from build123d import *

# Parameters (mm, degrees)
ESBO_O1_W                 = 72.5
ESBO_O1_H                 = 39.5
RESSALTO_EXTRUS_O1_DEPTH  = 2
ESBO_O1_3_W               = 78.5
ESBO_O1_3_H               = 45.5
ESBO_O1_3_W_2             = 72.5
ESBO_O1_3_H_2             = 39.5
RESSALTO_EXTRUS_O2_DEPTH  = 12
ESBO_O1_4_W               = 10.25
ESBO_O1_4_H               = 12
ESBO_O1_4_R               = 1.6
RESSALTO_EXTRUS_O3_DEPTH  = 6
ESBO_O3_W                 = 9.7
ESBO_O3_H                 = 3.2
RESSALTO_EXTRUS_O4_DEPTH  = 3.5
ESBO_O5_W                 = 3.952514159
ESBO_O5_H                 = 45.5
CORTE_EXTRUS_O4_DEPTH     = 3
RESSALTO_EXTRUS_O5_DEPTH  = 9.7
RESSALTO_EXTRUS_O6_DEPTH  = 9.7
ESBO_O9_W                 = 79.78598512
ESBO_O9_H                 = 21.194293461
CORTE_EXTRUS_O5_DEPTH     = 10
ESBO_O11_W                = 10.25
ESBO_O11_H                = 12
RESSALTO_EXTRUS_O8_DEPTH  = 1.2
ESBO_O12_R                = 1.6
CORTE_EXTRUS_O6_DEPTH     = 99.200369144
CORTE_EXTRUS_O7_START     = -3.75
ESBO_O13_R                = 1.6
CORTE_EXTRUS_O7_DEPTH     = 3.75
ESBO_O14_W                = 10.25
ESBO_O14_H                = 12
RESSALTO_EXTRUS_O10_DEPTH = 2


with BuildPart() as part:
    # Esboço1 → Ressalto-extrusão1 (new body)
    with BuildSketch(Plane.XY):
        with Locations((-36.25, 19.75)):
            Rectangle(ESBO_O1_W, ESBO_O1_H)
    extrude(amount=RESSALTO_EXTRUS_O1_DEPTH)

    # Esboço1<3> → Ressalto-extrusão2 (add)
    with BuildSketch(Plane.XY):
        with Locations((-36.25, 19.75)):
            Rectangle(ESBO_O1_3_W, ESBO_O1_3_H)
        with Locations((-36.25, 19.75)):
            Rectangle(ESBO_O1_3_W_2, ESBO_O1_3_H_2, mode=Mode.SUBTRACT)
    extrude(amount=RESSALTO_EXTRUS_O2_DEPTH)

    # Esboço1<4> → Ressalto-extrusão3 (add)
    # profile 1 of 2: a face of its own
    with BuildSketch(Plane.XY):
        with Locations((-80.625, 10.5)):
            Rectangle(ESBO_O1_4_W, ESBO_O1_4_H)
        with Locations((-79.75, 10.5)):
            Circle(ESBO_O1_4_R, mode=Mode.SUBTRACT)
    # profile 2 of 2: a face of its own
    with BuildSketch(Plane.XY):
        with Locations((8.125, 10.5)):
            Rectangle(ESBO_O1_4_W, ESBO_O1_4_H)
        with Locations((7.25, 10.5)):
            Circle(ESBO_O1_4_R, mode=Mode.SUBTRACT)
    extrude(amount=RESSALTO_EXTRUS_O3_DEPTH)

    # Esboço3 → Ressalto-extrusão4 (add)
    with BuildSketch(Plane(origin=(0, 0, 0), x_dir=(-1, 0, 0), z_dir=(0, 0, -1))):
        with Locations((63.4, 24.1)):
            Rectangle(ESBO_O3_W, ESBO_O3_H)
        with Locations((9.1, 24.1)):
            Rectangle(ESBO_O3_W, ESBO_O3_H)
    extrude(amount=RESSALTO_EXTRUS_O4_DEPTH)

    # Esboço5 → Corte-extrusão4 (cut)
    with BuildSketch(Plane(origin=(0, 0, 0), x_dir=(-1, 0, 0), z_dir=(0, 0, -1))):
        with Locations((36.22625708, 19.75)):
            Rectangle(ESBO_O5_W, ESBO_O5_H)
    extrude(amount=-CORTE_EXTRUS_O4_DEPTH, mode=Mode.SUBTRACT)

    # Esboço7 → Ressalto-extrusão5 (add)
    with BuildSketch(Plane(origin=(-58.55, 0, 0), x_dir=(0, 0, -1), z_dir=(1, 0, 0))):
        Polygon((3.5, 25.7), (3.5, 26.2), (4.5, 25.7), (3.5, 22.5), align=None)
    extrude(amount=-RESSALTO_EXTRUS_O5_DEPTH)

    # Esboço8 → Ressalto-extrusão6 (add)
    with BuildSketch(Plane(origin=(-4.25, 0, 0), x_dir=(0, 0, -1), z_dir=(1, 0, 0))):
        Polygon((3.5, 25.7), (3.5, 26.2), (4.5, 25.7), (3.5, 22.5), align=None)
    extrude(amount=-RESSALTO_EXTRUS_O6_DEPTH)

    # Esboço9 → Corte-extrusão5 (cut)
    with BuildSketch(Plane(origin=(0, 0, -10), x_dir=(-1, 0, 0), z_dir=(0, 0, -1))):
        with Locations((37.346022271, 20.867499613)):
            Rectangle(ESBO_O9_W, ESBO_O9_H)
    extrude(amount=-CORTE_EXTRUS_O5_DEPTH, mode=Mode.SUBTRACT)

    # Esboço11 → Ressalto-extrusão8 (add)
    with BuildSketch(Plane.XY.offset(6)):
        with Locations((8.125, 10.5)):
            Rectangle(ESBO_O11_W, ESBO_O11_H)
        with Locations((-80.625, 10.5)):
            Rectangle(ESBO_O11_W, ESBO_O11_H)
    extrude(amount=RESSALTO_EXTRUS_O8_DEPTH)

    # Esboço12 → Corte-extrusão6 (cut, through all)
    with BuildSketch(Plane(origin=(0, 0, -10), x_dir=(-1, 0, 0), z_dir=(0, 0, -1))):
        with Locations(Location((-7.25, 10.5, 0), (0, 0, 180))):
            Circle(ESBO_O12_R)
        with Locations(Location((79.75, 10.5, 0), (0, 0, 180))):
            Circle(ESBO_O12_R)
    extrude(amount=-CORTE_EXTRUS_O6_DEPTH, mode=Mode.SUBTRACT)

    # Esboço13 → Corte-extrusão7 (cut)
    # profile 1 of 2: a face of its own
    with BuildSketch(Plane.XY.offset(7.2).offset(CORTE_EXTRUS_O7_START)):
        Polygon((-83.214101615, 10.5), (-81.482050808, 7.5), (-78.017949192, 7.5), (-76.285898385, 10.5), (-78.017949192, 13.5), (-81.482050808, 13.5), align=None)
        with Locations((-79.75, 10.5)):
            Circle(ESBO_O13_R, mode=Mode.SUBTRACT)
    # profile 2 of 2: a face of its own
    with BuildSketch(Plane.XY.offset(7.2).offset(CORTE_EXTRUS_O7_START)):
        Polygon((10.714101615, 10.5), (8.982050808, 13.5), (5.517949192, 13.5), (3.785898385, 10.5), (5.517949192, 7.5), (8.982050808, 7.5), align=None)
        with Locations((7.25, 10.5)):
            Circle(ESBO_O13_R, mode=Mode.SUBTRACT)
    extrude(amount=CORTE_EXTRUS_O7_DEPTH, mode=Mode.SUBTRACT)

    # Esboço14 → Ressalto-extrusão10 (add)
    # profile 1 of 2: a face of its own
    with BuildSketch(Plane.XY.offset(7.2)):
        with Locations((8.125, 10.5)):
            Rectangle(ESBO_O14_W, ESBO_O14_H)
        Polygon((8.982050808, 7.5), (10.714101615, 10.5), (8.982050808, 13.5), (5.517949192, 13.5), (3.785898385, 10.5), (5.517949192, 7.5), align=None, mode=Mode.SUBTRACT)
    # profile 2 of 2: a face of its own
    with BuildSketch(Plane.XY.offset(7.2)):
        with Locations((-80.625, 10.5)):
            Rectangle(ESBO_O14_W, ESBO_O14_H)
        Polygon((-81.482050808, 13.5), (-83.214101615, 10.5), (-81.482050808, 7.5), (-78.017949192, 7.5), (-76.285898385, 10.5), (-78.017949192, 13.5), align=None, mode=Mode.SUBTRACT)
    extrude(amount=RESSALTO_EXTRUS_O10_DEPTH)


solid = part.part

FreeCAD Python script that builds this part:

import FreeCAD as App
import Part
import Sketcher
Q = App.Units.Quantity

doc = App.newDocument("Part")
body = doc.addObject("PartDesign::Body", "Body")

sketch1 = body.newObject("Sketcher::SketchObject", "Sketch")
sketch1.AttachmentSupport = (doc.getObject("XY_Plane"), [""])
sketch1.MapMode = "FlatFace"
sketch1.addGeometry([
    Part.LineSegment(App.Vector(-72.5, 39.5, 0), App.Vector(-72.5, 0, 0)),
    Part.LineSegment(App.Vector(-72.5, 0, 0), App.Vector(0, 0, 0)),
    Part.LineSegment(App.Vector(0, 0, 0), App.Vector(0, 39.5, 0)),
    Part.LineSegment(App.Vector(0, 39.5, 0), App.Vector(-72.5, 39.5, 0)),
], False)
sketch1.addConstraint([
    Sketcher.Constraint("Coincident", 0, 2, 1, 1),
    Sketcher.Constraint("Coincident", 1, 2, 2, 1),
    Sketcher.Constraint("Coincident", 2, 2, 3, 1),
    Sketcher.Constraint("Coincident", 3, 2, 0, 1),
    Sketcher.Constraint("Vertical", 0),
    Sketcher.Constraint("Horizontal", 1),
    Sketcher.Constraint("Vertical", 2),
    Sketcher.Constraint("Horizontal", 3),
    Sketcher.Constraint("Coincident", 1, 2, -1, 1),
    Sketcher.Constraint("DistanceX", 1, 1, 1, 2, Q("72.5 mm")),
    Sketcher.Constraint("DistanceY", 0, 2, 0, 1, Q("39.5 mm")),
])
pad1 = body.newObject("PartDesign::Pad", "Pad")
pad1.Profile = sketch1
pad1.Length = 2

sketch2 = body.newObject("Sketcher::SketchObject", "Sketch001")
sketch2.AttachmentSupport = (doc.getObject("XY_Plane"), [""])
sketch2.MapMode = "FlatFace"
sketch2.addGeometry([
    Part.LineSegment(App.Vector(-75.5, 42.5, 0), App.Vector(-75.5, -3, 0)),
    Part.LineSegment(App.Vector(-75.5, -3, 0), App.Vector(3, -3, 0)),
    Part.LineSegment(App.Vector(3, -3, 0), App.Vector(3, 42.5, 0)),
    Part.LineSegment(App.Vector(3, 42.5, 0), App.Vector(-75.5, 42.5, 0)),
    Part.LineSegment(App.Vector(0, 0, 0), App.Vector(-72.5, 0, 0)),
    Part.LineSegment(App.Vector(-72.5, 0, 0), App.Vector(-72.5, 39.5, 0)),
    Part.LineSegment(App.Vector(-72.5, 39.5, 0), App.Vector(0, 39.5, 0)),
    Part.LineSegment(App.Vector(0, 39.5, 0), App.Vector(0, 0, 0)),
], False)
sketch2.addConstraint([
    Sketcher.Constraint("Coincident", 0, 2, 1, 1),
    Sketcher.Constraint("Coincident", 1, 2, 2, 1),
    Sketcher.Constraint("Coincident", 2, 2, 3, 1),
    Sketcher.Constraint("Coincident", 3, 2, 0, 1),
    Sketcher.Constraint("Coincident", 4, 2, 5, 1),
    Sketcher.Constraint("Coincident", 5, 2, 6, 1),
    Sketcher.Constraint("Coincident", 6, 2, 7, 1),
    Sketcher.Constraint("Coincident", 7, 2, 4, 1),
    Sketcher.Constraint("Vertical", 0),
    Sketcher.Constraint("Horizontal", 1),
    Sketcher.Constraint("Vertical", 2),
    Sketcher.Constraint("Horizontal", 3),
    Sketcher.Constraint("Horizontal", 4),
    Sketcher.Constraint("Vertical", 5),
    Sketcher.Constraint("Horizontal", 6),
    Sketcher.Constraint("Vertical", 7),
    Sketcher.Constraint("Coincident", 7, 2, -1, 1),
    Sketcher.Constraint("DistanceX", 1, 1, 1, 2, Q("78.5 mm")),
    Sketcher.Constraint("DistanceX", 4, 2, 4, 1, Q("72.5 mm")),
    Sketcher.Constraint("DistanceY", 0, 2, 0, 1, Q("45.5 mm")),
    Sketcher.Constraint("DistanceY", 5, 1, 5, 2, Q("39.5 mm")),
    Sketcher.Constraint("DistanceY", 0, 2, -1, 1, Q("3 mm")),
    Sketcher.Constraint("DistanceX", -1, 1, 1, 2, Q("3 mm")),
])
pad2 = body.newObject("PartDesign::Pad", "Pad001")
pad2.Profile = sketch2
pad2.Length = 12

sketch3 = body.newObject("Sketcher::SketchObject", "Sketch002")
sketch3.AttachmentSupport = (doc.getObject("XY_Plane"), [""])
sketch3.MapMode = "FlatFace"
sketch3.addGeometry([
    Part.LineSegment(App.Vector(-85.75, 16.5, 0), App.Vector(-85.75, 4.5, 0)),
    Part.LineSegment(App.Vector(-85.75, 4.5, 0), App.Vector(-75.5, 4.5, 0)),
    Part.LineSegment(App.Vector(-75.5, 4.5, 0), App.Vector(-75.5, 16.5, 0)),
    Part.LineSegment(App.Vector(-75.5, 16.5, 0), App.Vector(-85.75, 16.5, 0)),
    Part.Circle(App.Vector(-79.75, 10.5, 0), App.Vector(0, 0, 1), 1.6),
    Part.LineSegment(App.Vector(3, 16.5, 0), App.Vector(3, 4.5, 0)),
    Part.LineSegment(App.Vector(3, 4.5, 0), App.Vector(13.25, 4.5, 0)),
    Part.LineSegment(App.Vector(13.25, 4.5, 0), App.Vector(13.25, 16.5, 0)),
    Part.LineSegment(App.Vector(13.25, 16.5, 0), App.Vector(3, 16.5, 0)),
    Part.Circle(App.Vector(7.25, 10.5, 0), App.Vector(0, 0, 1), 1.6),
], False)
sketch3.addConstraint([
    Sketcher.Constraint("Coincident", 0, 2, 1, 1),
    Sketcher.Constraint("Coincident", 1, 2, 2, 1),
    Sketcher.Constraint("Coincident", 2, 2, 3, 1),
    Sketcher.Constraint("Coincident", 3, 2, 0, 1),
    Sketcher.Constraint("Coincident", 5, 2, 6, 1),
    Sketcher.Constraint("Coincident", 6, 2, 7, 1),
    Sketcher.Constraint("Coincident", 7, 2, 8, 1),
    Sketcher.Constraint("Coincident", 8, 2, 5, 1),
    Sketcher.Constraint("Vertical", 0),
    Sketcher.Constraint("Horizontal", 1),
    Sketcher.Constraint("Vertical", 2),
    Sketcher.Constraint("Horizontal", 3),
    Sketcher.Constraint("Vertical", 5),
    Sketcher.Constraint("Horizontal", 6),
    Sketcher.Constraint("Vertical", 7),
    Sketcher.Constraint("Horizontal", 8),
    Sketcher.Constraint("Equal", 4, 9),
    Sketcher.Constraint("Horizontal", 4, 3, 9, 3),
    Sketcher.Constraint("Horizontal", 1, 2, 5, 2),
    Sketcher.Constraint("Horizontal", 3, 2, 7, 2),
    Sketcher.Constraint("Equal", 3, 6),
    Sketcher.Constraint("Diameter", 4, Q("3.2 mm")),
    Sketcher.Constraint("DistanceY", 0, 2, 0, 1, Q("12 mm")),
    Sketcher.Constraint("DistanceX", -1, 1, 5, 2, Q("3 mm")),
    Sketcher.Constraint("DistanceX", 4, 3, 9, 3, Q("87 mm")),
    Sketcher.Constraint("DistanceX", 0, 2, 4, 3, Q("6 mm")),
    Sketcher.Constraint("DistanceY", 0, 2, 4, 3, Q("6 mm")),
    Sketcher.Constraint("DistanceX", 9, 3, 6, 2, Q("6 mm")),
    Sketcher.Constraint("DistanceX", 1, 1, 1, 2, Q("10.25 mm")),
    Sketcher.Constraint("DistanceY", -1, 1, 4, 3, Q("10.5 mm")),
])
pad3 = body.newObject("PartDesign::Pad", "Pad002")
pad3.Profile = sketch3
pad3.Length = 6

sketch4 = body.newObject("Sketcher::SketchObject", "Sketch003")
sketch4.AttachmentSupport = (doc.getObject("XY_Plane"), [""])
sketch4.MapMode = "FlatFace"
sketch4.addGeometry([
    Part.LineSegment(App.Vector(-58.55, 25.7, 0), App.Vector(-58.55, 22.5, 0)),
    Part.LineSegment(App.Vector(-58.55, 22.5, 0), App.Vector(-68.25, 22.5, 0)),
    Part.LineSegment(App.Vector(-68.25, 22.5, 0), App.Vector(-68.25, 25.7, 0)),
    Part.LineSegment(App.Vector(-68.25, 25.7, 0), App.Vector(-58.55, 25.7, 0)),
    Part.LineSegment(App.Vector(-4.25, 25.7, 0), App.Vector(-4.25, 22.5, 0)),
    Part.LineSegment(App.Vector(-4.25, 22.5, 0), App.Vector(-13.95, 22.5, 0)),
    Part.LineSegment(App.Vector(-13.95, 22.5, 0), App.Vector(-13.95, 25.7, 0)),
    Part.LineSegment(App.Vector(-13.95, 25.7, 0), App.Vector(-4.25, 25.7, 0)),
], False)
sketch4.addConstraint([
    Sketcher.Constraint("Coincident", 0, 2, 1, 1),
    Sketcher.Constraint("Coincident", 1, 2, 2, 1),
    Sketcher.Constraint("Coincident", 2, 2, 3, 1),
    Sketcher.Constraint("Coincident", 3, 2, 0, 1),
    Sketcher.Constraint("Coincident", 4, 2, 5, 1),
    Sketcher.Constraint("Coincident", 5, 2, 6, 1),
    Sketcher.Constraint("Coincident", 6, 2, 7, 1),
    Sketcher.Constraint("Coincident", 7, 2, 4, 1),
    Sketcher.Constraint("Vertical", 0),
    Sketcher.Constraint("Horizontal", 1),
    Sketcher.Constraint("Vertical", 2),
    Sketcher.Constraint("Horizontal", 3),
    Sketcher.Constraint("Vertical", 4),
    Sketcher.Constraint("Horizontal", 5),
    Sketcher.Constraint("Vertical", 6),
    Sketcher.Constraint("Horizontal", 7),
    Sketcher.Constraint("Horizontal", 1, 2, 4, 2),
    Sketcher.Constraint("Horizontal", 3, 2, 6, 2),
    Sketcher.Constraint("Equal", 3, 5),
    Sketcher.Constraint("DistanceX", 1, 2, 1, 1, Q("9.7 mm")),
    Sketcher.Constraint("DistanceY", 0, 2, 0, 1, Q("3.2 mm")),
    Sketcher.Constraint("DistanceX", 1, 2, 4, 2, Q("64 mm")),
    Sketcher.Constraint("DistanceY", -1, 1, 0, 2, Q("22.5 mm")),
    Sketcher.Constraint("DistanceX", 0, 2, -1, 1, Q("58.55 mm")),
])
pad4 = body.newObject("PartDesign::Pad", "Pad003")
pad4.Profile = sketch4
pad4.Length = 3.5
pad4.Reversed = True

sketch5 = body.newObject("Sketcher::SketchObject", "Sketch004")
sketch5.AttachmentSupport = (doc.getObject("XY_Plane"), [""])
sketch5.MapMode = "FlatFace"
sketch5.addGeometry([
    Part.LineSegment(App.Vector(-34.25, 42.5, 0), App.Vector(-34.25, -3, 0)),
    Part.LineSegment(App.Vector(-34.25, -3, 0), App.Vector(-38.202514, -3, 0)),
    Part.LineSegment(App.Vector(-38.202514, -3, 0), App.Vector(-38.202514, 42.5, 0)),
    Part.LineSegment(App.Vector(-38.202514, 42.5, 0), App.Vector(-34.25, 42.5, 0)),
], False)
sketch5.addConstraint([
    Sketcher.Constraint("Coincident", 0, 2, 1, 1),
    Sketcher.Constraint("Coincident", 1, 2, 2, 1),
    Sketcher.Constraint("Coincident", 2, 2, 3, 1),
    Sketcher.Constraint("Coincident", 3, 2, 0, 1),
    Sketcher.Constraint("Vertical", 0),
    Sketcher.Constraint("Horizontal", 1),
    Sketcher.Constraint("Vertical", 2),
    Sketcher.Constraint("Horizontal", 3),
    Sketcher.Constraint("DistanceY", 0, 2, 0, 1, Q("45.5 mm")),
    Sketcher.Constraint("DistanceY", 0, 2, -1, 1, Q("3 mm")),
    Sketcher.Constraint("DistanceX", 0, 2, -1, 1, Q("34.25 mm")),
    Sketcher.Constraint("DistanceX", 1, 2, 1, 1, Q("3.952514 mm")),
])
pocket1 = body.newObject("PartDesign::Pocket", "Pocket")
pocket1.Profile = sketch5
pocket1.Length = 3
pocket1.Reversed = True

sketch6 = body.newObject("Sketcher::SketchObject", "Sketch005")
sketch6.AttachmentSupport = (doc.getObject("YZ_Plane"), [""])
sketch6.MapMode = "FlatFace"
sketch6.AttachmentOffset = App.Placement(App.Vector(0, 0, -58.55), App.Rotation())
sketch6.addGeometry([
    Part.LineSegment(App.Vector(26.2, -3.5, 0), App.Vector(22.5, -3.5, 0)),
    Part.LineSegment(App.Vector(22.5, -3.5, 0), App.Vector(25.7, -4.5, 0)),
    Part.LineSegment(App.Vector(25.7, -4.5, 0), App.Vector(26.2, -3.5, 0)),
], False)
sketch6.addConstraint([
    Sketcher.Constraint("Coincident", 0, 2, 1, 1),
    Sketcher.Constraint("Coincident", 1, 2, 2, 1),
    Sketcher.Constraint("Coincident", 2, 2, 0, 1),
    Sketcher.Constraint("Horizontal", 0),
    Sketcher.Constraint("DistanceX", 0, 2, 0, 1, Q("3.7 mm")),
    Sketcher.Constraint("DistanceY", 1, 2, 0, 2, Q("1 mm")),
    Sketcher.Constraint("DistanceX", -1, 1, 0, 2, Q("22.5 mm")),
    Sketcher.Constraint("DistanceY", 0, 2, -1, 1, Q("3.5 mm")),
    Sketcher.Constraint("DistanceX", -1, 1, 1, 2, Q("25.7 mm")),
])
pad5 = body.newObject("PartDesign::Pad", "Pad004")
pad5.Profile = sketch6
pad5.Length = 9.7
pad5.Reversed = True

sketch7 = body.newObject("Sketcher::SketchObject", "Sketch006")
sketch7.AttachmentSupport = (doc.getObject("YZ_Plane"), [""])
sketch7.MapMode = "FlatFace"
sketch7.AttachmentOffset = App.Placement(App.Vector(0, 0, -4.25), App.Rotation())
sketch7.addGeometry([
    Part.LineSegment(App.Vector(26.2, -3.5, 0), App.Vector(22.5, -3.5, 0)),
    Part.LineSegment(App.Vector(22.5, -3.5, 0), App.Vector(25.7, -4.5, 0)),
    Part.LineSegment(App.Vector(25.7, -4.5, 0), App.Vector(26.2, -3.5, 0)),
], False)
sketch7.addConstraint([
    Sketcher.Constraint("Coincident", 0, 2, 1, 1),
    Sketcher.Constraint("Coincident", 1, 2, 2, 1),
    Sketcher.Constraint("Coincident", 2, 2, 0, 1),
    Sketcher.Constraint("Horizontal", 0),
    Sketcher.Constraint("DistanceX", 0, 2, 0, 1, Q("3.7 mm")),
    Sketcher.Constraint("DistanceY", 1, 2, 0, 2, Q("1 mm")),
    Sketcher.Constraint("DistanceX", -1, 1, 0, 2, Q("22.5 mm")),
    Sketcher.Constraint("DistanceY", 0, 2, -1, 1, Q("3.5 mm")),
    Sketcher.Constraint("DistanceX", -1, 1, 1, 2, Q("25.7 mm")),
])
pad6 = body.newObject("PartDesign::Pad", "Pad005")
pad6.Profile = sketch7
pad6.Length = 9.7
pad6.Reversed = True

sketch8 = body.newObject("Sketcher::SketchObject", "Sketch007")
sketch8.AttachmentSupport = (doc.getObject("XY_Plane"), [""])
sketch8.MapMode = "FlatFace"
sketch8.AttachmentOffset = App.Placement(App.Vector(0, 0, -10), App.Rotation())
sketch8.addGeometry([
    Part.LineSegment(App.Vector(2.54697, 31.464646, 0), App.Vector(2.54697, 10.270353, 0)),
    Part.LineSegment(App.Vector(2.54697, 10.270353, 0), App.Vector(-77.239015, 10.270353, 0)),
    Part.LineSegment(App.Vector(-77.239015, 10.270353, 0), App.Vector(-77.239015, 31.464646, 0)),
    Part.LineSegment(App.Vector(-77.239015, 31.464646, 0), App.Vector(2.54697, 31.464646, 0)),
], False)
sketch8.addConstraint([
    Sketcher.Constraint("Coincident", 0, 2, 1, 1),
    Sketcher.Constraint("Coincident", 1, 2, 2, 1),
    Sketcher.Constraint("Coincident", 2, 2, 3, 1),
    Sketcher.Constraint("Coincident", 3, 2, 0, 1),
    Sketcher.Constraint("Vertical", 0),
    Sketcher.Constraint("Horizontal", 1),
    Sketcher.Constraint("Vertical", 2),
    Sketcher.Constraint("Horizontal", 3),
    Sketcher.Constraint("DistanceX", 1, 2, 1, 1, Q("79.785985 mm")),
    Sketcher.Constraint("DistanceY", 0, 2, 0, 1, Q("21.194293 mm")),
    Sketcher.Constraint("DistanceX", -1, 1, 0, 2, Q("2.54697 mm")),
    Sketcher.Constraint("DistanceY", -1, 1, 0, 2, Q("10.270353 mm")),
])
pocket2 = body.newObject("PartDesign::Pocket", "Pocket001")
pocket2.Profile = sketch8
pocket2.Length = 10
pocket2.Reversed = True

sketch9 = body.newObject("Sketcher::SketchObject", "Sketch008")
sketch9.AttachmentSupport = (doc.getObject("XY_Plane"), [""])
sketch9.MapMode = "FlatFace"
sketch9.AttachmentOffset = App.Placement(App.Vector(0, 0, 6), App.Rotation())
sketch9.addGeometry([
    Part.LineSegment(App.Vector(3, 16.5, 0), App.Vector(3, 4.5, 0)),
    Part.LineSegment(App.Vector(3, 4.5, 0), App.Vector(13.25, 4.5, 0)),
    Part.LineSegment(App.Vector(13.25, 4.5, 0), App.Vector(13.25, 16.5, 0)),
    Part.LineSegment(App.Vector(13.25, 16.5, 0), App.Vector(3, 16.5, 0)),
    Part.LineSegment(App.Vector(-85.75, 16.5, 0), App.Vector(-85.75, 4.5, 0)),
    Part.LineSegment(App.Vector(-85.75, 4.5, 0), App.Vector(-75.5, 4.5, 0)),
    Part.LineSegment(App.Vector(-75.5, 4.5, 0), App.Vector(-75.5, 16.5, 0)),
    Part.LineSegment(App.Vector(-75.5, 16.5, 0), App.Vector(-85.75, 16.5, 0)),
], False)
sketch9.addConstraint([
    Sketcher.Constraint("Coincident", 0, 2, 1, 1),
    Sketcher.Constraint("Coincident", 1, 2, 2, 1),
    Sketcher.Constraint("Coincident", 2, 2, 3, 1),
    Sketcher.Constraint("Coincident", 3, 2, 0, 1),
    Sketcher.Constraint("Coincident", 4, 2, 5, 1),
    Sketcher.Constraint("Coincident", 5, 2, 6, 1),
    Sketcher.Constraint("Coincident", 6, 2, 7, 1),
    Sketcher.Constraint("Coincident", 7, 2, 4, 1),
    Sketcher.Constraint("Vertical", 0),
    Sketcher.Constraint("Horizontal", 1),
    Sketcher.Constraint("Vertical", 2),
    Sketcher.Constraint("Horizontal", 3),
    Sketcher.Constraint("Vertical", 4),
    Sketcher.Constraint("Horizontal", 5),
    Sketcher.Constraint("Vertical", 6),
    Sketcher.Constraint("Horizontal", 7),
    Sketcher.Constraint("Horizontal", 1, 2, 4, 2),
    Sketcher.Constraint("Horizontal", 3, 2, 6, 2),
    Sketcher.Constraint("Equal", 3, 5),
    Sketcher.Constraint("DistanceY", 0, 2, 0, 1, Q("12 mm")),
    Sketcher.Constraint("DistanceX", -1, 1, 0, 2, Q("3 mm")),
    Sketcher.Constraint("DistanceX", 4, 2, 1, 2, Q("99 mm")),
    Sketcher.Constraint("DistanceX", 1, 1, 1, 2, Q("10.25 mm")),
    Sketcher.Constraint("DistanceY", -1, 1, 0, 2, Q("4.5 mm")),
])
pad7 = body.newObject("PartDesign::Pad", "Pad006")
pad7.Profile = sketch9
pad7.Length = 1.2

sketch10 = body.newObject("Sketcher::SketchObject", "Sketch009")
sketch10.AttachmentSupport = (doc.getObject("XY_Plane"), [""])
sketch10.MapMode = "FlatFace"
sketch10.AttachmentOffset = App.Placement(App.Vector(0, 0, -10), App.Rotation())
sketch10.addGeometry([
    Part.Circle(App.Vector(7.25, 10.5, 0), App.Vector(0, 0, 1), 1.6),
    Part.Circle(App.Vector(-79.75, 10.5, 0), App.Vector(0, 0, 1), 1.6),
], False)
sketch10.addConstraint([
    Sketcher.Constraint("Equal", 0, 1),
    Sketcher.Constraint("Horizontal", 0, 3, 1, 3),
    Sketcher.Constraint("Diameter", 0, Q("3.2 mm")),
    Sketcher.Constraint("DistanceX", 1, 3, 0, 3, Q("87 mm")),
    Sketcher.Constraint("DistanceY", -1, 1, 0, 3, Q("10.5 mm")),
    Sketcher.Constraint("DistanceX", -1, 1, 0, 3, Q("7.25 mm")),
])
pocket3 = body.newObject("PartDesign::Pocket", "Pocket002")
pocket3.Profile = sketch10
pocket3.Type = "ThroughAll"
pocket3.Reversed = True

sketch11 = body.newObject("Sketcher::SketchObject", "Sketch010")
sketch11.AttachmentSupport = (doc.getObject("XY_Plane"), [""])
sketch11.MapMode = "FlatFace"
sketch11.AttachmentOffset = App.Placement(App.Vector(0, 0, 3.45), App.Rotation())
sketch11.addGeometry([
    Part.LineSegment(App.Vector(-83.214102, 10.5, 0), App.Vector(-81.482051, 7.5, 0)),
    Part.LineSegment(App.Vector(-81.482051, 7.5, 0), App.Vector(-78.017949, 7.5, 0)),
    Part.LineSegment(App.Vector(-78.017949, 7.5, 0), App.Vector(-76.285898, 10.5, 0)),
    Part.LineSegment(App.Vector(-76.285898, 10.5, 0), App.Vector(-78.017949, 13.5, 0)),
    Part.LineSegment(App.Vector(-78.017949, 13.5, 0), App.Vector(-81.482051, 13.5, 0)),
    Part.LineSegment(App.Vector(-81.482051, 13.5, 0), App.Vector(-83.214102, 10.5, 0)),
    Part.Circle(App.Vector(-79.75, 10.5, 0), App.Vector(0, 0, 1), 1.6),
    Part.LineSegment(App.Vector(10.714102, 10.5, 0), App.Vector(8.982051, 13.5, 0)),
    Part.LineSegment(App.Vector(8.982051, 13.5, 0), App.Vector(5.517949, 13.5, 0)),
    Part.LineSegment(App.Vector(5.517949, 13.5, 0), App.Vector(3.785898, 10.5, 0)),
    Part.LineSegment(App.Vector(3.785898, 10.5, 0), App.Vector(5.517949, 7.5, 0)),
    Part.LineSegment(App.Vector(5.517949, 7.5, 0), App.Vector(8.982051, 7.5, 0)),
    Part.LineSegment(App.Vector(8.982051, 7.5, 0), App.Vector(10.714102, 10.5, 0)),
    Part.Circle(App.Vector(7.25, 10.5, 0), App.Vector(0, 0, 1), 1.6),
], False)
sketch11.addConstraint([
    Sketcher.Constraint("Coincident", 0, 2, 1, 1),
    Sketcher.Constraint("Coincident", 1, 2, 2, 1),
    Sketcher.Constraint("Coincident", 2, 2, 3, 1),
    Sketcher.Constraint("Coincident", 3, 2, 4, 1),
    Sketcher.Constraint("Coincident", 4, 2, 5, 1),
    Sketcher.Constraint("Coincident", 5, 2, 0, 1),
    Sketcher.Constraint("Coincident", 7, 2, 8, 1),
    Sketcher.Constraint("Coincident", 8, 2, 9, 1),
    Sketcher.Constraint("Coincident", 9, 2, 10, 1),
    Sketcher.Constraint("Coincident", 10, 2, 11, 1),
    Sketcher.Constraint("Coincident", 11, 2, 12, 1),
    Sketcher.Constraint("Coincident", 12, 2, 7, 1),
    Sketcher.Constraint("Horizontal", 1),
    Sketcher.Constraint("Horizontal", 4),
    Sketcher.Constraint("Horizontal", 8),
    Sketcher.Constraint("Horizontal", 11),
    Sketcher.Constraint("Equal", 6, 13),
    Sketcher.Constraint("Parallel", 0, 3),
    Sketcher.Constraint("Parallel", 2, 5),
    Sketcher.Constraint("Parallel", 3, 7),
    Sketcher.Constraint("Parallel", 5, 9),
    Sketcher.Constraint("Parallel", 7, 10),
    Sketcher.Constraint("Parallel", 9, 12),
    Sketcher.Constraint("Horizontal", 6, 3, 13, 3),
    Sketcher.Constraint("Horizontal", 13, 3, 2, 2),
    Sketcher.Constraint("Horizontal", 2, 2, 5, 2),
    Sketcher.Constraint("Horizontal", 4, 2, 7, 2),
    Sketcher.Constraint("Horizontal", 5, 2, 9, 2),
    Sketcher.Constraint("Horizontal", 1, 2, 10, 2),
    Sketcher.Constraint("Horizontal", 9, 2, 12, 2),
    Sketcher.Constraint("Vertical", 1, 2, 3, 2),
    Sketcher.Constraint("Vertical", 0, 2, 4, 2),
    Sketcher.Constraint("Equal", 4, 8),
    Sketcher.Constraint("Diameter", 6, Q("3.2 mm")),
    Sketcher.Constraint("Angle", 0, Q("-60 deg")),
    Sketcher.Constraint("DistanceX", 6, 3, 13, 3, Q("87 mm")),
    Sketcher.Constraint("DistanceY", 0, 2, 6, 3, Q("3 mm")),
    Sketcher.Constraint("DistanceX", 3, 2, 7, 2, Q("87 mm")),
    Sketcher.Constraint("DistanceY", -1, 1, 6, 3, Q("10.5 mm")),
    Sketcher.Constraint("DistanceX", 6, 3, -1, 1, Q("79.75 mm")),
    Sketcher.Constraint("DistanceX", 1, 1, 1, 2, Q("3.464102 mm")),
    Sketcher.Constraint("DistanceX", 2, 2, -1, 1, Q("76.285898 mm")),
])
pocket4 = body.newObject("PartDesign::Pocket", "Pocket003")
pocket4.Profile = sketch11
pocket4.Length = 3.75
pocket4.Reversed = True

sketch12 = body.newObject("Sketcher::SketchObject", "Sketch011")
sketch12.AttachmentSupport = (doc.getObject("XY_Plane"), [""])
sketch12.MapMode = "FlatFace"
sketch12.AttachmentOffset = App.Placement(App.Vector(0, 0, 7.2), App.Rotation())
sketch12.addGeometry([
    Part.LineSegment(App.Vector(3, 16.5, 0), App.Vector(3, 4.5, 0)),
    Part.LineSegment(App.Vector(3, 4.5, 0), App.Vector(13.25, 4.5, 0)),
    Part.LineSegment(App.Vector(13.25, 4.5, 0), App.Vector(13.25, 16.5, 0)),
    Part.LineSegment(App.Vector(13.25, 16.5, 0), App.Vector(3, 16.5, 0)),
    Part.LineSegment(App.Vector(10.714102, 10.5, 0), App.Vector(8.982051, 7.5, 0)),
    Part.LineSegment(App.Vector(8.982051, 7.5, 0), App.Vector(5.517949, 7.5, 0)),
    Part.LineSegment(App.Vector(5.517949, 7.5, 0), App.Vector(3.785898, 10.5, 0)),
    Part.LineSegment(App.Vector(3.785898, 10.5, 0), App.Vector(5.517949, 13.5, 0)),
    Part.LineSegment(App.Vector(5.517949, 13.5, 0), App.Vector(8.982051, 13.5, 0)),
    Part.LineSegment(App.Vector(8.982051, 13.5, 0), App.Vector(10.714102, 10.5, 0)),
    Part.LineSegment(App.Vector(-85.75, 16.5, 0), App.Vector(-85.75, 4.5, 0)),
    Part.LineSegment(App.Vector(-85.75, 4.5, 0), App.Vector(-75.5, 4.5, 0)),
    Part.LineSegment(App.Vector(-75.5, 4.5, 0), App.Vector(-75.5, 16.5, 0)),
    Part.LineSegment(App.Vector(-75.5, 16.5, 0), App.Vector(-85.75, 16.5, 0)),
    Part.LineSegment(App.Vector(-83.214102, 10.5, 0), App.Vector(-81.482051, 13.5, 0)),
    Part.LineSegment(App.Vector(-81.482051, 13.5, 0), App.Vector(-78.017949, 13.5, 0)),
    Part.LineSegment(App.Vector(-78.017949, 13.5, 0), App.Vector(-76.285898, 10.5, 0)),
    Part.LineSegment(App.Vector(-76.285898, 10.5, 0), App.Vector(-78.017949, 7.5, 0)),
    Part.LineSegment(App.Vector(-78.017949, 7.5, 0), App.Vector(-81.482051, 7.5, 0)),
    Part.LineSegment(App.Vector(-81.482051, 7.5, 0), App.Vector(-83.214102, 10.5, 0)),
], False)
sketch12.addConstraint([
    Sketcher.Constraint("Coincident", 0, 2, 1, 1),
    Sketcher.Constraint("Coincident", 1, 2, 2, 1),
    Sketcher.Constraint("Coincident", 2, 2, 3, 1),
    Sketcher.Constraint("Coincident", 3, 2, 0, 1),
    Sketcher.Constraint("Coincident", 4, 2, 5, 1),
    Sketcher.Constraint("Coincident", 5, 2, 6, 1),
    Sketcher.Constraint("Coincident", 6, 2, 7, 1),
    Sketcher.Constraint("Coincident", 7, 2, 8, 1),
    Sketcher.Constraint("Coincident", 8, 2, 9, 1),
    Sketcher.Constraint("Coincident", 9, 2, 4, 1),
    Sketcher.Constraint("Coincident", 10, 2, 11, 1),
    Sketcher.Constraint("Coincident", 11, 2, 12, 1),
    Sketcher.Constraint("Coincident", 12, 2, 13, 1),
    Sketcher.Constraint("Coincident", 13, 2, 10, 1),
    Sketcher.Constraint("Coincident", 14, 2, 15, 1),
    Sketcher.Constraint("Coincident", 15, 2, 16, 1),
    Sketcher.Constraint("Coincident", 16, 2, 17, 1),
    Sketcher.Constraint("Coincident", 17, 2, 18, 1),
    Sketcher.Constraint("Coincident", 18, 2, 19, 1),
    Sketcher.Constraint("Coincident", 19, 2, 14, 1),
    Sketcher.Constraint("Vertical", 0),
    Sketcher.Constraint("Horizontal", 1),
    Sketcher.Constraint("Vertical", 2),
    Sketcher.Constraint("Horizontal", 3),
    Sketcher.Constraint("Horizontal", 5),
    Sketcher.Constraint("Horizontal", 8),
    Sketcher.Constraint("Vertical", 10),
    Sketcher.Constraint("Horizontal", 11),
    Sketcher.Constraint("Vertical", 12),
    Sketcher.Constraint("Horizontal", 13),
    Sketcher.Constraint("Horizontal", 15),
    Sketcher.Constraint("Horizontal", 18),
    Sketcher.Constraint("Parallel", 4, 7),
    Sketcher.Constraint("Parallel", 6, 9),
    Sketcher.Constraint("Parallel", 7, 14),
    Sketcher.Constraint("Parallel", 9, 16),
    Sketcher.Constraint("Parallel", 14, 17),
    Sketcher.Constraint("Parallel", 16, 19),
    Sketcher.Constraint("Horizontal", 6, 2, 9, 2),
    Sketcher.Constraint("Horizontal", 1, 2, 10, 2),
    Sketcher.Constraint("Horizontal", 3, 2, 12, 2),
    Sketcher.Constraint("Horizontal", 8, 2, 14, 2),
    Sketcher.Constraint("Horizontal", 9, 2, 16, 2),
    Sketcher.Constraint("Horizontal", 5, 2, 17, 2),
    Sketcher.Constraint("Horizontal", 16, 2, 19, 2),
    Sketcher.Constraint("Vertical", 5, 2, 7, 2),
    Sketcher.Constraint("Vertical", 4, 2, 8, 2),
    Sketcher.Constraint("Equal", 3, 11),
    Sketcher.Constraint("Equal", 8, 15),
    Sketcher.Constraint("DistanceY", 0, 2, 0, 1, Q("12 mm")),
    Sketcher.Constraint("Angle", 4, Q("-120 deg")),
    Sketcher.Constraint("DistanceX", -1, 1, 0, 2, Q("3 mm")),
    Sketcher.Constraint("DistanceY", 1, 2, 4, 2, Q("3 mm")),
    Sketcher.Constraint("DistanceY", 5, 2, 6, 2, Q("3 mm")),
    Sketcher.Constraint("DistanceX", 1, 1, 1, 2, Q("10.25 mm")),
    Sketcher.Constraint("DistanceY", -1, 1, 0, 2, Q("4.5 mm")),
    Sketcher.Constraint("DistanceX", 11, 2, -1, 1, Q("75.5 mm")),
    Sketcher.Constraint("DistanceX", 5, 2, 5, 1, Q("3.464102 mm")),
    Sketcher.Constraint("DistanceX", -1, 1, 6, 2, Q("3.785898 mm")),
    Sketcher.Constraint("DistanceX", 16, 2, -1, 1, Q("76.285898 mm")),
])
pad8 = body.newObject("PartDesign::Pad", "Pad007")
pad8.Profile = sketch12
pad8.Length = 2

doc.recompute()
